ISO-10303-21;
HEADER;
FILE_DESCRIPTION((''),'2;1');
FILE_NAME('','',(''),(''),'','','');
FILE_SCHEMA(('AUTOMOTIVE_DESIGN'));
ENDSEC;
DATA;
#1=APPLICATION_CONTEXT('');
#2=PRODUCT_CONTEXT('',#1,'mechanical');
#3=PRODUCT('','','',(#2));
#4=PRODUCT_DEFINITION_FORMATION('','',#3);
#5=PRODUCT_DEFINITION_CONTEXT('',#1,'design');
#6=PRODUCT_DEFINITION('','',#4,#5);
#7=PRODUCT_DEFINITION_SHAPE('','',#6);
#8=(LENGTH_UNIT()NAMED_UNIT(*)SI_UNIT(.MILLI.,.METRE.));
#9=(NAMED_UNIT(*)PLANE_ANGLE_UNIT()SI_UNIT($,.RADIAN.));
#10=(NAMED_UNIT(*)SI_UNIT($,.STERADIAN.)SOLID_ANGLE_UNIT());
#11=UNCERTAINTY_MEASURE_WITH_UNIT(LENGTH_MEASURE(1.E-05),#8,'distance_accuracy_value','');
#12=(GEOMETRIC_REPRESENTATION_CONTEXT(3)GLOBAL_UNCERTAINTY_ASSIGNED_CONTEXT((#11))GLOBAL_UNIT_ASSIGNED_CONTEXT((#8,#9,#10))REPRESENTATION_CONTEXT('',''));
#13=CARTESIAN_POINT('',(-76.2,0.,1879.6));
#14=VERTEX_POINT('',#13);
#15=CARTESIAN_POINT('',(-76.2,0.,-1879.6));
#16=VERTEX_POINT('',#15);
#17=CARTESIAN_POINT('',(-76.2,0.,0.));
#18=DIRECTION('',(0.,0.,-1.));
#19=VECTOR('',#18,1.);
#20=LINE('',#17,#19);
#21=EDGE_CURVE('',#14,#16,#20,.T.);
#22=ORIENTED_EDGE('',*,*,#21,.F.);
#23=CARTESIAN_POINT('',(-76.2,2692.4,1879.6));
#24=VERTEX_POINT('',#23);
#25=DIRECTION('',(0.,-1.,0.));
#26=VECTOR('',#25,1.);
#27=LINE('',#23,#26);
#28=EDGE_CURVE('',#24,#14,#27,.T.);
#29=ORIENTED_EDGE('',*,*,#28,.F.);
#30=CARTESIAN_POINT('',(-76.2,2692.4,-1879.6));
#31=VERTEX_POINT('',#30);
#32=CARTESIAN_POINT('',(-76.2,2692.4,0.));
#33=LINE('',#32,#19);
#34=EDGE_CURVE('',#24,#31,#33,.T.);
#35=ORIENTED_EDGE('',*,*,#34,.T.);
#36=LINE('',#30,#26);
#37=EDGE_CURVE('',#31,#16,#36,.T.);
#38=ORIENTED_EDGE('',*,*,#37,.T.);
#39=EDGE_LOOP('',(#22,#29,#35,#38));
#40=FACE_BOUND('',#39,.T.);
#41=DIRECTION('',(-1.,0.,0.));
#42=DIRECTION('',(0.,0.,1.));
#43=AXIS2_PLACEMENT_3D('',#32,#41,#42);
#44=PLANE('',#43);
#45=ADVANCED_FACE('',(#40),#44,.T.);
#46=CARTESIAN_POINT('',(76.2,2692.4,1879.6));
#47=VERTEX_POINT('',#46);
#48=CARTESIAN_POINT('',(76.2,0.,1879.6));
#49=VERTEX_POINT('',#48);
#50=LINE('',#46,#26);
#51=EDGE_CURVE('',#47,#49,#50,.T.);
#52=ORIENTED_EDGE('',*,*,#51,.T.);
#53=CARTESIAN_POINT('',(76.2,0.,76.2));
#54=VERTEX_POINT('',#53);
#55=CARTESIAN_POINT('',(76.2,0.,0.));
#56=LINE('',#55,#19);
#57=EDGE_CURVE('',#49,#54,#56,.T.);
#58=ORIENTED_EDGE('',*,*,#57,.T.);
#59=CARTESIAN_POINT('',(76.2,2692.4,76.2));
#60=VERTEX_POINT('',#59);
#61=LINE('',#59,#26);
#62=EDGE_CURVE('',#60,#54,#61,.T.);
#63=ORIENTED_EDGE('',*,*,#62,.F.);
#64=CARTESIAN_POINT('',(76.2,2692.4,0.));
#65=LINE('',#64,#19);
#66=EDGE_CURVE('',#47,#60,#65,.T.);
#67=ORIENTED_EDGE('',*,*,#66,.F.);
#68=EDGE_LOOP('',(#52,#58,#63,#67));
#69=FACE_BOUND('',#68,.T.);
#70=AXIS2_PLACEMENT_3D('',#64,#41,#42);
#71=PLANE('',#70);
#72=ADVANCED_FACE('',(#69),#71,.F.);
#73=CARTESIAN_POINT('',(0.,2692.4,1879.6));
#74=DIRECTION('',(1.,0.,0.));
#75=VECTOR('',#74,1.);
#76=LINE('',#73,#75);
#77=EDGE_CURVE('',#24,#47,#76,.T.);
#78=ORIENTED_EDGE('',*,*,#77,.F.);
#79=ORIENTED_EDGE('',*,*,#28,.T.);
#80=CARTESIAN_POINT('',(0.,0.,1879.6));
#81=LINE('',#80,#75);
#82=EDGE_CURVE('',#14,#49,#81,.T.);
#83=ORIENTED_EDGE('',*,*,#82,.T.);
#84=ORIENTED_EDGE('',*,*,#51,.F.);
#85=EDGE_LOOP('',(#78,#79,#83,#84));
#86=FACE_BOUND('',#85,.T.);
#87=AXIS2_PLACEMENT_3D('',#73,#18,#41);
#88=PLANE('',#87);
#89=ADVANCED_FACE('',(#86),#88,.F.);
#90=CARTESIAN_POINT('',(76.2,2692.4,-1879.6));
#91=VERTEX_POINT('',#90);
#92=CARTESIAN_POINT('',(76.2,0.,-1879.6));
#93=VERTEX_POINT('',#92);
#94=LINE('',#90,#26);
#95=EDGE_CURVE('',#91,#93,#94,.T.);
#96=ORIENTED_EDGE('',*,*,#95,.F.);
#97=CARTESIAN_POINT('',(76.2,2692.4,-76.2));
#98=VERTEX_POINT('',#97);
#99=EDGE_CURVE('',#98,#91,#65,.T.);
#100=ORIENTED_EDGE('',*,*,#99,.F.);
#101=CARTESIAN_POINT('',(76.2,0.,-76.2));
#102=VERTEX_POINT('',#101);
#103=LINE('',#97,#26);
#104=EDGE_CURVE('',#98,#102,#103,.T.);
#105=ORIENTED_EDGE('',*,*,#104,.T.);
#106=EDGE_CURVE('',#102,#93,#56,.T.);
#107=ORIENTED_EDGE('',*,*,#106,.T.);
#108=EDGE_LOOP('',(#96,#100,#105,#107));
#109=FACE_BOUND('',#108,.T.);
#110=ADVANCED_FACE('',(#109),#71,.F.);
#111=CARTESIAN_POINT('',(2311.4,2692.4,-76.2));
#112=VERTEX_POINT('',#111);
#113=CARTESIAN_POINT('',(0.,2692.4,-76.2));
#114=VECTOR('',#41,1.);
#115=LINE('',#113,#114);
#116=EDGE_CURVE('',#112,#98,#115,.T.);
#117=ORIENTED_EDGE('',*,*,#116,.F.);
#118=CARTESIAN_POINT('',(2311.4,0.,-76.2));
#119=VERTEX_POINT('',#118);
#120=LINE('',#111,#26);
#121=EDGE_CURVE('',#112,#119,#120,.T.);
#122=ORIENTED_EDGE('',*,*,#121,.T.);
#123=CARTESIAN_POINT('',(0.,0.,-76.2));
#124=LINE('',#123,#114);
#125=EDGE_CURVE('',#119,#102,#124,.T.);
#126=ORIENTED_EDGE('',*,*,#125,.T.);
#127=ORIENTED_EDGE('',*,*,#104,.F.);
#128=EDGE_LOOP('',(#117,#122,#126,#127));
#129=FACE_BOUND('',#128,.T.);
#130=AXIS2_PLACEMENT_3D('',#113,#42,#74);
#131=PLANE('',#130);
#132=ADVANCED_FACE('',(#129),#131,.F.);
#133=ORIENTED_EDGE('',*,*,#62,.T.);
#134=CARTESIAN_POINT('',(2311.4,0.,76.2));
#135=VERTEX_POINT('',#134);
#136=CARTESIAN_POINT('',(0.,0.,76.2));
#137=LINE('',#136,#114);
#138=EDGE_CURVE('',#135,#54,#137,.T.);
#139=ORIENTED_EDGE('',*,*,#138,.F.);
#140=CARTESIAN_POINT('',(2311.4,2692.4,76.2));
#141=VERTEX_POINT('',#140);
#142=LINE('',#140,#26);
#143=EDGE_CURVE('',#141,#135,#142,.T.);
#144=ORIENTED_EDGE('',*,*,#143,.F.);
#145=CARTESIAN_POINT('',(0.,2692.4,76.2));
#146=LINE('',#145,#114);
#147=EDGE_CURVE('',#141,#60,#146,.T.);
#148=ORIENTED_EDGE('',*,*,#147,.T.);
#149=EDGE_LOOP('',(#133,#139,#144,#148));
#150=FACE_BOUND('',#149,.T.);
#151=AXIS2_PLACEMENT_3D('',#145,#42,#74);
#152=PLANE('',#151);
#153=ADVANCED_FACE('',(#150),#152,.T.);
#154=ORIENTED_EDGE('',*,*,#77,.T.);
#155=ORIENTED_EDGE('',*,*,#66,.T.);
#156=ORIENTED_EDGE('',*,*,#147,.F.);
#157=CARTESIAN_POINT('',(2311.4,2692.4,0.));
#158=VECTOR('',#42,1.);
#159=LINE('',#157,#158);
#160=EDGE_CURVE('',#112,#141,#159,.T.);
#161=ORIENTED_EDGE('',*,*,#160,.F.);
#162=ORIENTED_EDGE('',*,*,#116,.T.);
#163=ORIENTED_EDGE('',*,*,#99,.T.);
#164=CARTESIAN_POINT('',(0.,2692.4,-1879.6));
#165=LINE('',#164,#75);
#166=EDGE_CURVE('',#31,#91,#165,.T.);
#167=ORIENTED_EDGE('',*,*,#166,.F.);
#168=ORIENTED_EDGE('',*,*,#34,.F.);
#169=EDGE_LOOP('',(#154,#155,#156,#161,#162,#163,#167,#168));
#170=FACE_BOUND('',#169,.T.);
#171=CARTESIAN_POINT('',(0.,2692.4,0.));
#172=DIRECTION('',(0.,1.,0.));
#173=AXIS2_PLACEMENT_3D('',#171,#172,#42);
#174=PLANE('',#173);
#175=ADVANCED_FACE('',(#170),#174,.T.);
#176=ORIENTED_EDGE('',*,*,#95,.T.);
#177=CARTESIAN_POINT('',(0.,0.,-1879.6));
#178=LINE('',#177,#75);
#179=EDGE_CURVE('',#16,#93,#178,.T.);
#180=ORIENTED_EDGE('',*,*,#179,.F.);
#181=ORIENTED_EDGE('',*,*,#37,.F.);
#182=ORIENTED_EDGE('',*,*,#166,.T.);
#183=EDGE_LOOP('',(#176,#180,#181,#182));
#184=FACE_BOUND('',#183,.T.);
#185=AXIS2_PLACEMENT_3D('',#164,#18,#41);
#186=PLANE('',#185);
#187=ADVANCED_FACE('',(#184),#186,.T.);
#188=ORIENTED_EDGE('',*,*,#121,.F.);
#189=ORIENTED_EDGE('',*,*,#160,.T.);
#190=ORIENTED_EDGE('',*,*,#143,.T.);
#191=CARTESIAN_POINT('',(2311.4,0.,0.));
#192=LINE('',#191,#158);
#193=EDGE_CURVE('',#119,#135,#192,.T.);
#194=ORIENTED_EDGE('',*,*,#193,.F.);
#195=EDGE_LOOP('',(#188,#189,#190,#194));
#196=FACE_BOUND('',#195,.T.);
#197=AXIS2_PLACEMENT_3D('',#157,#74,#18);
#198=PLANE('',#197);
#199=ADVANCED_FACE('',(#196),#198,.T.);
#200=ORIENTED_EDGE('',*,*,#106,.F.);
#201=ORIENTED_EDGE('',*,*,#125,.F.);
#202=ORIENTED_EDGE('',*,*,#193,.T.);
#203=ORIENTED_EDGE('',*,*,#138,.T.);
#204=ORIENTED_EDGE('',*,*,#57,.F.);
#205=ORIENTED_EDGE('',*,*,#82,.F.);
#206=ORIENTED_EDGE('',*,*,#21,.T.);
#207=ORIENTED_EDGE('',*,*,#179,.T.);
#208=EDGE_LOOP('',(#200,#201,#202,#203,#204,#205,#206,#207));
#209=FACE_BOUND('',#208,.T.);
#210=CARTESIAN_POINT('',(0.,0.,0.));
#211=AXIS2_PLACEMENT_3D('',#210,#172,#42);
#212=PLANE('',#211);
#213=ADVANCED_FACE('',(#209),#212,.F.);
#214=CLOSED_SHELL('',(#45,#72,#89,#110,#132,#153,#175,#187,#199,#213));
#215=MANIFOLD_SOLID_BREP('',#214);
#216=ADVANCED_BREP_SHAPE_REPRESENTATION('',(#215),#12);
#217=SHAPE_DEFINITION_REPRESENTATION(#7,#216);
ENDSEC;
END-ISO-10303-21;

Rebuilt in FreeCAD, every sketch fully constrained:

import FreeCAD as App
import Part
import Sketcher
Q = App.Units.Quantity


def add_polygon(sketch, points):
    """Adds a closed chain of lines whose ends are joined by coincident constraints."""
    first, n = sketch.GeometryCount, len(points)
    for a, b in zip(points, points[1:] + points[:1]):
        sketch.addGeometry(Part.LineSegment(App.Vector(*a, 0), App.Vector(*b, 0)), False)
    for i in range(n):
        sketch.addConstraint(Sketcher.Constraint("Coincident", first + i, 2, first + (i + 1) % n, 1))

doc = App.newDocument("Part")
body = doc.addObject("PartDesign::Body", "Body")

sketch1 = doc.addObject("Sketcher::SketchObject", "Sketch")
body.addObject(sketch1)
sketch1.AttachmentSupport = (doc.XZ_Plane, [""])
sketch1.MapMode = "FlatFace"
add_polygon(sketch1, [(-76, -1880), (-76, 1880), (76, 1880), (76, 76), (2311, 76), (2311, -76), (76, -76), (76, -1880)])
sketch1.addConstraint([
    Sketcher.Constraint("Vertical", 0),
    Sketcher.Constraint("Horizontal", 1),
    Sketcher.Constraint("Vertical", 2),
    Sketcher.Constraint("Horizontal", 3),
    Sketcher.Constraint("Vertical", 4),
    Sketcher.Constraint("Horizontal", 5),
    Sketcher.Constraint("Vertical", 6),
    Sketcher.Constraint("Horizontal", 7),
    Sketcher.Constraint("Symmetric", 0, 2, 6, 2, -1, 1),
    Sketcher.Constraint("Symmetric", 2, 2, 5, 2, -1),
    Sketcher.Constraint("Equal", 7, 4),
    Sketcher.Constraint("DistanceX", 1, 1, 1, 2, Q("6 in")),
    Sketcher.Constraint("DistanceX", 3, 1, 3, 2, Q("88 in")),
    Sketcher.Constraint("DistanceY", 0, 1, 0, 2, Q("148 in")),
])
pad1 = doc.addObject("PartDesign::Pad", "Pad")
body.addObject(pad1)
pad1.Profile = sketch1
pad1.Length = Q("106 in")
pad1.Reversed = True

doc.recompute()
